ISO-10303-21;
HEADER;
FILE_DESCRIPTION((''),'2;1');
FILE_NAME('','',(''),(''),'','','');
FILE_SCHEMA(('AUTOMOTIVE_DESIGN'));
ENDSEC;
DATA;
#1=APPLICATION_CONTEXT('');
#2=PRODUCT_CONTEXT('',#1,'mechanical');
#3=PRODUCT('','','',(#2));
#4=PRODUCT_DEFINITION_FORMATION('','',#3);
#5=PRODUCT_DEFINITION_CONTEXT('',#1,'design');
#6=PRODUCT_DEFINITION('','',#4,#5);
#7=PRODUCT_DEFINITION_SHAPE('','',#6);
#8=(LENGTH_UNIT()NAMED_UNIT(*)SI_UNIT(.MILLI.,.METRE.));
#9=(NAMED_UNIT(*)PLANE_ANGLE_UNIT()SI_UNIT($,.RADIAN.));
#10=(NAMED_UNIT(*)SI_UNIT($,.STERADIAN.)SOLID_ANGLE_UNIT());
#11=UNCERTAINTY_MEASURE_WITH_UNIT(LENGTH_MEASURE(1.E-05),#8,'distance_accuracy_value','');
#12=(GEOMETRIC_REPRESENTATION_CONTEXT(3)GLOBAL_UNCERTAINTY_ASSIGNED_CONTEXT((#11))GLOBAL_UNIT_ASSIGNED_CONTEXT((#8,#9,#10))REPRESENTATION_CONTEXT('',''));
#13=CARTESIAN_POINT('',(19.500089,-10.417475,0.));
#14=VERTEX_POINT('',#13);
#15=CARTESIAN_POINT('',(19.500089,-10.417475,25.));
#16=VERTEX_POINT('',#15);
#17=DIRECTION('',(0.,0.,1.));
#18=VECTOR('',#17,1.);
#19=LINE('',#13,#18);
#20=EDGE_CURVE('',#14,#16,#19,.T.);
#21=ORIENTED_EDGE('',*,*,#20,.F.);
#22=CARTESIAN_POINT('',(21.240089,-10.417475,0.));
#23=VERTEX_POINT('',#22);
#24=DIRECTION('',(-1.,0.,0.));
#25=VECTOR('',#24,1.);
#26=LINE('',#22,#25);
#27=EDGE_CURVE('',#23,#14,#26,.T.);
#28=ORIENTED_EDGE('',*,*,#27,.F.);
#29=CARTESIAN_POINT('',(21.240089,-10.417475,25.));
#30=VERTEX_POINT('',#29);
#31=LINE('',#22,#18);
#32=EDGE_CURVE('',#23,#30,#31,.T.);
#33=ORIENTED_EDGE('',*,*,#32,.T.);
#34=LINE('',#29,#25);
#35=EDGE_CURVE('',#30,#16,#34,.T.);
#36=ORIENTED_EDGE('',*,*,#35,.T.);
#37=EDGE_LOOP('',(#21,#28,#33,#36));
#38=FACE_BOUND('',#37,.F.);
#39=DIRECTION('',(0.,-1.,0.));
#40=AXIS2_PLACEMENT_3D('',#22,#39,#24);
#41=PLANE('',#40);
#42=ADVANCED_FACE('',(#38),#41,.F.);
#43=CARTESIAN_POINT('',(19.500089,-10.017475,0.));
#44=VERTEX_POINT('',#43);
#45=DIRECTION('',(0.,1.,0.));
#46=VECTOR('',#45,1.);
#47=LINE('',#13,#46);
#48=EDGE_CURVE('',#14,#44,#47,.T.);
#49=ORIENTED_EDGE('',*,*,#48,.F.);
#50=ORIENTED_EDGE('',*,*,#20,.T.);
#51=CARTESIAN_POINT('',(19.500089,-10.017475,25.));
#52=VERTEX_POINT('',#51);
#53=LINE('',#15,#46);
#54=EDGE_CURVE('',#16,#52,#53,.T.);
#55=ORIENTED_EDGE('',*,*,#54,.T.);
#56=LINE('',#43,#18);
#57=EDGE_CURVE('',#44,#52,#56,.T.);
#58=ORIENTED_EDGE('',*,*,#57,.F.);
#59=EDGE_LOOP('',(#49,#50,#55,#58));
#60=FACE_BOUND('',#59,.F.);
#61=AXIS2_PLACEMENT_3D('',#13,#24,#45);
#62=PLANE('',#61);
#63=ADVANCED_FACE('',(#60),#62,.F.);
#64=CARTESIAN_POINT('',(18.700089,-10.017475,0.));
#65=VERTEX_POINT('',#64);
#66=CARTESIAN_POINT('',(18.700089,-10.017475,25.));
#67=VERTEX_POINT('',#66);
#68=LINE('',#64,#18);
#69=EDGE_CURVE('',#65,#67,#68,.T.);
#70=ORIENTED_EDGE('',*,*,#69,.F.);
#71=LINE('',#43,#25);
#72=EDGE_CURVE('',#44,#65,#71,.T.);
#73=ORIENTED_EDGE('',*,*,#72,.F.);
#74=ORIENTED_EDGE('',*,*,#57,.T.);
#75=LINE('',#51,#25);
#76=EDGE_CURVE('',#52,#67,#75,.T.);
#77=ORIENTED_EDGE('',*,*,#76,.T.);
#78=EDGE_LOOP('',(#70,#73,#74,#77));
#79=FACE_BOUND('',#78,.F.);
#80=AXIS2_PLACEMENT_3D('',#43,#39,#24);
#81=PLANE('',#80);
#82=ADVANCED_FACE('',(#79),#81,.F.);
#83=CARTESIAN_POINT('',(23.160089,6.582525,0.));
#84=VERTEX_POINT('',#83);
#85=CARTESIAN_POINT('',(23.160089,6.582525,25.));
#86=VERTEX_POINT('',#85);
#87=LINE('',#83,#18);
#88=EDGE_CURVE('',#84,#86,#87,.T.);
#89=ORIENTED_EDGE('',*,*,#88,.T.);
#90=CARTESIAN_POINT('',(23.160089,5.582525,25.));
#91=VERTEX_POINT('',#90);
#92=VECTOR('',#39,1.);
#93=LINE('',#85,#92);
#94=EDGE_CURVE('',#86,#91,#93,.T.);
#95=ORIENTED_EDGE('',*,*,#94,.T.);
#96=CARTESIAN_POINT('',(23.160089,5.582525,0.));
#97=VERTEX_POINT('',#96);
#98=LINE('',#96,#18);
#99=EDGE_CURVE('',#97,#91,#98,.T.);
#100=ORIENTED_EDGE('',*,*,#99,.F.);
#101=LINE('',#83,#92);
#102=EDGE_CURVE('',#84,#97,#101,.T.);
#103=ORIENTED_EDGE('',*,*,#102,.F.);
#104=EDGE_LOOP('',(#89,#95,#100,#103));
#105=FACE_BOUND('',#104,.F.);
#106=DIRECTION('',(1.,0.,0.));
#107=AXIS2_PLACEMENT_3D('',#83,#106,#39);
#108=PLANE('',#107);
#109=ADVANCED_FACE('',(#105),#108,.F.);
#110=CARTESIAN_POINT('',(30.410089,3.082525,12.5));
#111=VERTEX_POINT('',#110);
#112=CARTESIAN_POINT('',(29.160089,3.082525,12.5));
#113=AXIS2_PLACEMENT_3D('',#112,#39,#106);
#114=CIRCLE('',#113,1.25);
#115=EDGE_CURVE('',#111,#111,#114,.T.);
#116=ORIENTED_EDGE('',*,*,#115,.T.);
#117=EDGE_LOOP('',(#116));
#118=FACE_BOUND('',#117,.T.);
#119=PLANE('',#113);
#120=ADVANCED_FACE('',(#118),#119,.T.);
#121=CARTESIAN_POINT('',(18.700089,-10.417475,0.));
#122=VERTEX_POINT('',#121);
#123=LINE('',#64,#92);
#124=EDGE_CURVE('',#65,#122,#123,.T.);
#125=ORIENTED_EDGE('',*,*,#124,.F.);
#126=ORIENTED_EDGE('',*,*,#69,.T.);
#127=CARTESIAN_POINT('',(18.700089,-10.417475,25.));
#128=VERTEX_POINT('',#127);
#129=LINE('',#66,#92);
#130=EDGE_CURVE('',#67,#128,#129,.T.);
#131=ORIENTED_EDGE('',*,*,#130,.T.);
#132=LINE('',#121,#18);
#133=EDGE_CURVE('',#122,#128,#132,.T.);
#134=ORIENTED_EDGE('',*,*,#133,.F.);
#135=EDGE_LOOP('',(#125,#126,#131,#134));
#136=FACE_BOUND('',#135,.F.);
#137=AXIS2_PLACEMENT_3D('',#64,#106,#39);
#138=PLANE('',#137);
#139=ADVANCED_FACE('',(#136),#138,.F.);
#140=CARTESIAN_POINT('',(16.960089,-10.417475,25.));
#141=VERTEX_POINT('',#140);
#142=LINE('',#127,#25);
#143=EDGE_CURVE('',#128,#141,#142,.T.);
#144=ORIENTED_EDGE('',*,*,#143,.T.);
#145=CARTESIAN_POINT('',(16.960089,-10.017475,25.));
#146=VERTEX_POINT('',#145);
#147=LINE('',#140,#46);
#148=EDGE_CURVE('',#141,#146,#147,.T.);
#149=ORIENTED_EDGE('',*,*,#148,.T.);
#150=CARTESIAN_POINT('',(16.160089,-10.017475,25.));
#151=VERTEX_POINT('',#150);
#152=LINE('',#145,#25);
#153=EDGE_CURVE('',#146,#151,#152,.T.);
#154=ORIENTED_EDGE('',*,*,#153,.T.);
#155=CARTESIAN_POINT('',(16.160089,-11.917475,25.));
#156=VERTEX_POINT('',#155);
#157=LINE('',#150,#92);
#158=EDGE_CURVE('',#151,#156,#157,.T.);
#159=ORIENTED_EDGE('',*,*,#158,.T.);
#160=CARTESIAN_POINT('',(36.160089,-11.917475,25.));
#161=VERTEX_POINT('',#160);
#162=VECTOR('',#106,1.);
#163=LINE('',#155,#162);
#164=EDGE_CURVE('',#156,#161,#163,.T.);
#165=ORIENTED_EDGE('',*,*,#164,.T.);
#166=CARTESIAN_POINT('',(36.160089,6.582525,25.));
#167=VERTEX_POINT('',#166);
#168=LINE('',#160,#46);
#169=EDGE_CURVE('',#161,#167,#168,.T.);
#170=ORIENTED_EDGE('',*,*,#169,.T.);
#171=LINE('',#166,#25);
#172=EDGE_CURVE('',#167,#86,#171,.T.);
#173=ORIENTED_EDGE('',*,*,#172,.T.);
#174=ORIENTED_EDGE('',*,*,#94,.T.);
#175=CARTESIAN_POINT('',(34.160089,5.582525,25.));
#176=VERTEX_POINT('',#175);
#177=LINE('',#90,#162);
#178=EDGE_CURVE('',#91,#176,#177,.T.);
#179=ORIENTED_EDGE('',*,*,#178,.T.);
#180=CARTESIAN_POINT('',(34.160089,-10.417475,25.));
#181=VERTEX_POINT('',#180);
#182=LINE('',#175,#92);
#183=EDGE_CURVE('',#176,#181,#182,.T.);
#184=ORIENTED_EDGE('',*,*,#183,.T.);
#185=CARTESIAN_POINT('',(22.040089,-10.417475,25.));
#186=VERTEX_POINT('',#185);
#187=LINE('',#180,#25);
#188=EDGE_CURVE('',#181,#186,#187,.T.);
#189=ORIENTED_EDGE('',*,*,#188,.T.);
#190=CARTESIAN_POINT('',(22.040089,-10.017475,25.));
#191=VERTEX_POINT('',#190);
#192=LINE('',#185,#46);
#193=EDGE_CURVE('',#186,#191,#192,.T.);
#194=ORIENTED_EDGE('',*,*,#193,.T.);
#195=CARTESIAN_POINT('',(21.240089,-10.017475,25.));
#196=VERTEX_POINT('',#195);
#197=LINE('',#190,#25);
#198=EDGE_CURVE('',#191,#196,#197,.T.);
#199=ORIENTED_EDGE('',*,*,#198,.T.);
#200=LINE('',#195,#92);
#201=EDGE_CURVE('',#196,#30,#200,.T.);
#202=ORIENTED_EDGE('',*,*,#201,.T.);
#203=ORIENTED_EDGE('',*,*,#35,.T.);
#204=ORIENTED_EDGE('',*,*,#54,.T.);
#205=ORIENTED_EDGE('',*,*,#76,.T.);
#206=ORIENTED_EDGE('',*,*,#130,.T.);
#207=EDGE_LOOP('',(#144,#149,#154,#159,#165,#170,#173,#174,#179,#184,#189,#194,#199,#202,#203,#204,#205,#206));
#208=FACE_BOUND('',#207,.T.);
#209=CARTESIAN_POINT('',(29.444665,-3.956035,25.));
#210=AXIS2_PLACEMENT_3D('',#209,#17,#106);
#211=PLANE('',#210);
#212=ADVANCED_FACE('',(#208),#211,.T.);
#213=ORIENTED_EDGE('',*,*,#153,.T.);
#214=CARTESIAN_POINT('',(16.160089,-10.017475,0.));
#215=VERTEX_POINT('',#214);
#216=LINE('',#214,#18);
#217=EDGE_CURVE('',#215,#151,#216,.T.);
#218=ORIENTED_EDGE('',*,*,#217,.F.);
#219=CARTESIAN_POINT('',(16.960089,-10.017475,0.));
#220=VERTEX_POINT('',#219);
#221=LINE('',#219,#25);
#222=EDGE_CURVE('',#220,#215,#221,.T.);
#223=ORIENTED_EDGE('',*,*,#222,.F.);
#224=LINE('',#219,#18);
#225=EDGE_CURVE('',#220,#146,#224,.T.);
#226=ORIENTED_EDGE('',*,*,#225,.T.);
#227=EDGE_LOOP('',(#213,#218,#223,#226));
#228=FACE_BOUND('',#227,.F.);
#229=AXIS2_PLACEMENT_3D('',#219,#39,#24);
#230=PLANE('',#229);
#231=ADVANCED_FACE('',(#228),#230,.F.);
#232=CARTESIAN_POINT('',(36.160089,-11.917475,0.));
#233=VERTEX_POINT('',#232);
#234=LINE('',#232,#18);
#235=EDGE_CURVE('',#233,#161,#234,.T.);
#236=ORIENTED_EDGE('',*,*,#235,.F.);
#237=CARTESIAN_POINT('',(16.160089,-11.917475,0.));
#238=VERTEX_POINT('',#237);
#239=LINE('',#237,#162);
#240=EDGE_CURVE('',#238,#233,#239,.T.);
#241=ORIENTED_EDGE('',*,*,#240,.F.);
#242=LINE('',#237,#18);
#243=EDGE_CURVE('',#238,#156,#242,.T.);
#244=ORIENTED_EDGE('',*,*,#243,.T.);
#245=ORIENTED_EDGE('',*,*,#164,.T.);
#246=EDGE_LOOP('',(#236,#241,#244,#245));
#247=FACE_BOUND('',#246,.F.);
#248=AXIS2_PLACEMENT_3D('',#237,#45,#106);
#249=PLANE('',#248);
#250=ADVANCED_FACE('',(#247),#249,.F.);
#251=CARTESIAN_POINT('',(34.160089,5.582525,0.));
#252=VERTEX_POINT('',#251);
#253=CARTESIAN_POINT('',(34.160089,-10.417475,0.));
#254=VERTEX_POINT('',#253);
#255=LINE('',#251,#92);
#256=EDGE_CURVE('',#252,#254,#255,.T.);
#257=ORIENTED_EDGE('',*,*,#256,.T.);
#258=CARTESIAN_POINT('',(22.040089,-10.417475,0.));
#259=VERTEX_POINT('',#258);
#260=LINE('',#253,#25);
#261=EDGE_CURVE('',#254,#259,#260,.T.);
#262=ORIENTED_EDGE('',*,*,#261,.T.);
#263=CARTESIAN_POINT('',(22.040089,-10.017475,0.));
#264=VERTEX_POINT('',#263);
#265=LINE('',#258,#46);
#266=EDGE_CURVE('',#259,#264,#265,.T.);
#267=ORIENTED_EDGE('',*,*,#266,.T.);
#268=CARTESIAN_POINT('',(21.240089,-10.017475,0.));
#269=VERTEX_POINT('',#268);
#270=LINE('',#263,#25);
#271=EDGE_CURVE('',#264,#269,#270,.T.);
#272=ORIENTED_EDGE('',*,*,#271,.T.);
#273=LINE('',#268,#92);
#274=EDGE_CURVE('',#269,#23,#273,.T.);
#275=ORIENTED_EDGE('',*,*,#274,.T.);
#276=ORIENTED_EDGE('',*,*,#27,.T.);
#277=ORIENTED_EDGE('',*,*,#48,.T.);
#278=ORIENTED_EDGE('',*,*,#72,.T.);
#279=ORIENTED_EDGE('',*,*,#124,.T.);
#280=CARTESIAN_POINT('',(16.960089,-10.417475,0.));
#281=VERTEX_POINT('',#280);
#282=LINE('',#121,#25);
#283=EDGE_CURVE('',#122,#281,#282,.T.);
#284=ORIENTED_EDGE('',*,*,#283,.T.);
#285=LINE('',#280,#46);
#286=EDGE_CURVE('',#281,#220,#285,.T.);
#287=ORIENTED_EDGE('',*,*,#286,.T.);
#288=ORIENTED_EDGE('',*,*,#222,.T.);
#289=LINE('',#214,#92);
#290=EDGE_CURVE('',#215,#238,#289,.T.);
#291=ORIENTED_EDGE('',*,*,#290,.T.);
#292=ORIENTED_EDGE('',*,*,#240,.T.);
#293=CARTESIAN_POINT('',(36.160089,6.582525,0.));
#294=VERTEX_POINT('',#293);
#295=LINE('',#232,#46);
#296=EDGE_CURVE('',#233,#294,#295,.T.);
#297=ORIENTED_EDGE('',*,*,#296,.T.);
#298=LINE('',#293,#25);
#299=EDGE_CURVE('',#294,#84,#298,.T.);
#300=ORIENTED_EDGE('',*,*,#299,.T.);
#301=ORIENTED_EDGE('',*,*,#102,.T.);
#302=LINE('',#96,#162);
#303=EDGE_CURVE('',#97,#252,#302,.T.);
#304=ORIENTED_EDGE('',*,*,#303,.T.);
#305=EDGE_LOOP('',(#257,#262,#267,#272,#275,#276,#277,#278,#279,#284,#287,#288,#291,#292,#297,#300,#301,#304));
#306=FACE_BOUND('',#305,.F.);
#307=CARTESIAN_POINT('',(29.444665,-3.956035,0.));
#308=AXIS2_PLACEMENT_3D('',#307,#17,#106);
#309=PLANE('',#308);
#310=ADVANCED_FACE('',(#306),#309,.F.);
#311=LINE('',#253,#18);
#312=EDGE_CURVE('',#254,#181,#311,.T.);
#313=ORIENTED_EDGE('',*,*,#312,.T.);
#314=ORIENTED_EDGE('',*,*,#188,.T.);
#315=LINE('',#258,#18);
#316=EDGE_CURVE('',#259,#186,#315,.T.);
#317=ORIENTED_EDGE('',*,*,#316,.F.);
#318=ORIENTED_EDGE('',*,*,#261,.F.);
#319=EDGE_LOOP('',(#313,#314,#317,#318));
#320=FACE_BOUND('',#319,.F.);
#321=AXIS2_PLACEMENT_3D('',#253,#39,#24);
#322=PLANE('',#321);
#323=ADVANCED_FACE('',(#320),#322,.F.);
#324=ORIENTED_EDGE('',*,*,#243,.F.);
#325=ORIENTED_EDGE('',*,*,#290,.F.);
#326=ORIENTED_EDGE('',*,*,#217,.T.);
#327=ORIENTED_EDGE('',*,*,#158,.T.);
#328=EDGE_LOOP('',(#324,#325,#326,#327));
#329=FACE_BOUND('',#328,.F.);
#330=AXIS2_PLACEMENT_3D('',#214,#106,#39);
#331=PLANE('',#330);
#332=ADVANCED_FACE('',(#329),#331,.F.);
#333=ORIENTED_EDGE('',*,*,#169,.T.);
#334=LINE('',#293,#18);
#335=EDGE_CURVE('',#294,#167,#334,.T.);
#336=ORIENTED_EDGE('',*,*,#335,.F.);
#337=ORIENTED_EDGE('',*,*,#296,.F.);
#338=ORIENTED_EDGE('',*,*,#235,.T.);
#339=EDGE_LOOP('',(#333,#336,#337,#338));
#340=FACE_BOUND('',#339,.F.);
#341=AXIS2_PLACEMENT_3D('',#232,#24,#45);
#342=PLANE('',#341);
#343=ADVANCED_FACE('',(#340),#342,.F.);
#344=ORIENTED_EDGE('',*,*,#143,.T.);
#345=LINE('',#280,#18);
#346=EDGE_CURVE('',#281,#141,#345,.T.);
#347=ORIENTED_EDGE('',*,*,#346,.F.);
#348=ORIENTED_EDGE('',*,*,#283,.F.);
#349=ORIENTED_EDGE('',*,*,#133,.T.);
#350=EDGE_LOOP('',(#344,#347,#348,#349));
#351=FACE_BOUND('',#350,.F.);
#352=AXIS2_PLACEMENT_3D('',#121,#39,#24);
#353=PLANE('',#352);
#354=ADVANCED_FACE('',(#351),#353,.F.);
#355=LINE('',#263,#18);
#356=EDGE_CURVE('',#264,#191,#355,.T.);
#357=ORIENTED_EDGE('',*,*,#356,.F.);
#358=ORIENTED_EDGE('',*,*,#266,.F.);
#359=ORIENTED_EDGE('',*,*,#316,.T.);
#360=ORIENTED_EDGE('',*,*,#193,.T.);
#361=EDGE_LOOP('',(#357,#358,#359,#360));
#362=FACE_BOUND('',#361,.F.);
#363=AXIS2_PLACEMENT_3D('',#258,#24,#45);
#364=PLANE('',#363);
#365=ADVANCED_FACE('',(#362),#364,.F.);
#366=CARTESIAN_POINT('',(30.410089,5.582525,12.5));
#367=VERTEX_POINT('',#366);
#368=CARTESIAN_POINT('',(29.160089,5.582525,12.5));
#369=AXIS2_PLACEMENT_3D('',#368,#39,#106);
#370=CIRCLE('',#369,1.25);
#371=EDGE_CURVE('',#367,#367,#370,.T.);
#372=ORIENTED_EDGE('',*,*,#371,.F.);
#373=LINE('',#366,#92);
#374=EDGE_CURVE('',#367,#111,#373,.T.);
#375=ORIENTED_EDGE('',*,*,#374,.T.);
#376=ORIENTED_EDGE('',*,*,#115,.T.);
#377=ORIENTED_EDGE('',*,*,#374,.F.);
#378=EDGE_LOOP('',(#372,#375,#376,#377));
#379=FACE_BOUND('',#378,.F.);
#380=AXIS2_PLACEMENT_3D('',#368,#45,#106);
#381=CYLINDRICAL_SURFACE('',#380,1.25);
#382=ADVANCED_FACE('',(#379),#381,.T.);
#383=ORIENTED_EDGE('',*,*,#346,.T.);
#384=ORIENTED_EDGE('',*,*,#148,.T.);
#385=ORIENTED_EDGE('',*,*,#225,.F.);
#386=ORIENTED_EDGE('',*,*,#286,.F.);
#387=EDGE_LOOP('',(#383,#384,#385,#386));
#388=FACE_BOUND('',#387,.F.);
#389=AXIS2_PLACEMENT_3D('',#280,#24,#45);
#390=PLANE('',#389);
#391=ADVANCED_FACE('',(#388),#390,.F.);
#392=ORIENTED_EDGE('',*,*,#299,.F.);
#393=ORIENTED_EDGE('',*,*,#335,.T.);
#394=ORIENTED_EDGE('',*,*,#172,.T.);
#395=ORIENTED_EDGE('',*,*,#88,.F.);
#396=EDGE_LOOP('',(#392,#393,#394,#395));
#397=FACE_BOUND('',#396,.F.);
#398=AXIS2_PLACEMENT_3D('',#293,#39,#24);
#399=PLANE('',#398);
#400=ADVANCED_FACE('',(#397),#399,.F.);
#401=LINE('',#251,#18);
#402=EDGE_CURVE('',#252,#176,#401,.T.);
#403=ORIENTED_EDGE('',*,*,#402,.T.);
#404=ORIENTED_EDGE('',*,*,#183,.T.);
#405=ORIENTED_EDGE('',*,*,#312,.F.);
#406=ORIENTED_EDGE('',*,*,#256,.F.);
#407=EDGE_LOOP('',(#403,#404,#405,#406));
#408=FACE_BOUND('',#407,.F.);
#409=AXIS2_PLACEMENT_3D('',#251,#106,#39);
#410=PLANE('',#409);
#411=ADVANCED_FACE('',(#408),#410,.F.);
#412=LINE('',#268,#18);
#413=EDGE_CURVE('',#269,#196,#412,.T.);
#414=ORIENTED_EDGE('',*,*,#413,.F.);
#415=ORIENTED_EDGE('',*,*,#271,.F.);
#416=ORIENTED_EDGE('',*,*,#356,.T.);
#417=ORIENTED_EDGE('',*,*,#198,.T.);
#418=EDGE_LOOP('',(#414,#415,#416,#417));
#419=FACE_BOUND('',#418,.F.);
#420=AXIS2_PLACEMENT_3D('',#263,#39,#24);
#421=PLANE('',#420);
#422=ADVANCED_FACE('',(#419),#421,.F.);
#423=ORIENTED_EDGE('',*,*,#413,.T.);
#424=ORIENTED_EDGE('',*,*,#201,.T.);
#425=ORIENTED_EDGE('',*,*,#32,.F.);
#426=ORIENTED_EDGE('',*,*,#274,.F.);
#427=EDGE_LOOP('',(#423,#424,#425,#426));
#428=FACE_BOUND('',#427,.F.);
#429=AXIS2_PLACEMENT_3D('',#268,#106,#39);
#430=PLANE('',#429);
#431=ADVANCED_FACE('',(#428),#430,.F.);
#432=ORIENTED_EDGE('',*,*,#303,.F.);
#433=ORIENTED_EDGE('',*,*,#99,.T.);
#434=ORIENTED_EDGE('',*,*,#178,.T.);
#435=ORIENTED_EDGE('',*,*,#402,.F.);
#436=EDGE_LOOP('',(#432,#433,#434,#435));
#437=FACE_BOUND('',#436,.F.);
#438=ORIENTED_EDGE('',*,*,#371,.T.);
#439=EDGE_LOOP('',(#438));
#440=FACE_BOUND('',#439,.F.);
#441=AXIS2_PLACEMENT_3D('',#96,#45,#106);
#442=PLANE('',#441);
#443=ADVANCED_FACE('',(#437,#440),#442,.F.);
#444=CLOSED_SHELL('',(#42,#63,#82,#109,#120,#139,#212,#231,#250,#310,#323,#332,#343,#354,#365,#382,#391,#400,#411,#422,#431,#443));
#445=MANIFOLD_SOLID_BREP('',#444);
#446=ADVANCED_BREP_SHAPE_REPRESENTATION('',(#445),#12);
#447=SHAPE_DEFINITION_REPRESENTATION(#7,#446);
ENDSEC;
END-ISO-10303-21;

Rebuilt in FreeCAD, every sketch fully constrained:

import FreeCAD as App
import Part
import Sketcher

V = App.Vector
Q = App.Units.Quantity


def add_polygon(sketch, points):
    """Adds a closed chain of lines whose ends are joined by coincident constraints."""
    first, n = sketch.GeometryCount, len(points)
    for a, b in zip(points, points[1:] + points[:1]):
        sketch.addGeometry(Part.LineSegment(App.Vector(*a, 0), App.Vector(*b, 0)), False)
    for i in range(n):
        sketch.addConstraint(Sketcher.Constraint("Coincident", first + i, 2, first + (i + 1) % n, 1))

doc = App.newDocument("Part")
body = doc.addObject("PartDesign::Body", "Body")

sketch1 = doc.addObject("Sketcher::SketchObject", "Sketch")
body.addObject(sketch1)
sketch1.AttachmentSupport = (doc.XY_Plane, [""])
sketch1.MapMode = "FlatFace"
add_polygon(sketch1, [(36.16, 6.58), (23.16, 6.58), (23.16, 5.58), (34.16, 5.58), (34.16, -10.42), (22.04, -10.42), (22.04, -10.02), (21.24, -10.02), (21.24, -10.42), (19.5, -10.42), (19.5, -10.02), (18.7, -10.02), (18.7, -10.42), (16.96, -10.42), (16.96, -10.02), (16.16, -10.02), (16.16, -11.92), (36.16, -11.92)])
sketch1.addConstraint([
    Sketcher.Constraint("Horizontal", 0),
    Sketcher.Constraint("Vertical", 1),
    Sketcher.Constraint("Horizontal", 2),
    Sketcher.Constraint("Vertical", 3),
    Sketcher.Constraint("Horizontal", 4),
    Sketcher.Constraint("Vertical", 5),
    Sketcher.Constraint("Horizontal", 6),
    Sketcher.Constraint("Vertical", 7),
    Sketcher.Constraint("Horizontal", 8),
    Sketcher.Constraint("Vertical", 9),
    Sketcher.Constraint("Horizontal", 10),
    Sketcher.Constraint("Vertical", 11),
    Sketcher.Constraint("Horizontal", 12),
    Sketcher.Constraint("Vertical", 13),
    Sketcher.Constraint("Horizontal", 14),
    Sketcher.Constraint("Vertical", 15),
    Sketcher.Constraint("Horizontal", 16),
    Sketcher.Constraint("Vertical", 17),
    Sketcher.Constraint("Horizontal", 4, 2, 7, 2),
    Sketcher.Constraint("Horizontal", 6, 2, 9, 2),
    Sketcher.Constraint("Horizontal", 8, 2, 11, 2),
    Sketcher.Constraint("Horizontal", 10, 2, 13, 2),
    Sketcher.Constraint("Equal", 6, 10),
    Sketcher.Constraint("Equal", 8, 12),
    Sketcher.Constraint("Equal", 10, 14),
    Sketcher.Constraint("DistanceX", 0, 2, 0, 1, Q("13 mm")),
    Sketcher.Constraint("DistanceX", 2, 1, 2, 2, Q("11 mm")),
    Sketcher.Constraint("DistanceX", 16, 1, 16, 2, Q("20 mm")),
    Sketcher.Constraint("DistanceY", 1, 2, 1, 1, Q("1 mm")),
    Sketcher.Constraint("DistanceY", 3, 2, 3, 1, Q("16 mm")),
    Sketcher.Constraint("DistanceX", 6, 2, 6, 1, Q("0.8 mm")),
    Sketcher.Constraint("DistanceY", 5, 1, 5, 2, Q("0.4 mm")),
    Sketcher.Constraint("DistanceY", 15, 2, 15, 1, Q("1.9 mm")),
    Sketcher.Constraint("DistanceX", 4, 2, 4, 1, Q("12.12 mm")),
    Sketcher.Constraint("DistanceX", -1, 1, 0, 2, Q("23.160089 mm")),
    Sketcher.Constraint("DistanceY", -1, 1, 0, 2, Q("6.582525 mm")),
])
pad1 = doc.addObject("PartDesign::Pad", "Pad")
body.addObject(pad1)
pad1.Profile = sketch1
pad1.Length = 25

sketch2 = doc.addObject("Sketcher::SketchObject", "Sketch001")
body.addObject(sketch2)
sketch2.AttachmentSupport = (doc.XZ_Plane, [""])
sketch2.MapMode = "FlatFace"
sketch2.AttachmentOffset = App.Placement(V(0, 0, -5.582525), App.Rotation())
sketch2.addGeometry(Part.Circle(V(29.2, 12.5, 0), V(0, 0, 1), 1.2), False)
sketch2.addConstraint([
    Sketcher.Constraint("Diameter", 0, Q("2.5 mm")),
    Sketcher.Constraint("DistanceY", -1, 1, 0, 3, Q("12.5 mm")),
    Sketcher.Constraint("DistanceX", -1, 1, 0, 3, Q("29.160089 mm")),
])
pad2 = doc.addObject("PartDesign::Pad", "Pad001")
body.addObject(pad2)
pad2.Profile = sketch2
pad2.Length = 2.5

doc.recompute()
